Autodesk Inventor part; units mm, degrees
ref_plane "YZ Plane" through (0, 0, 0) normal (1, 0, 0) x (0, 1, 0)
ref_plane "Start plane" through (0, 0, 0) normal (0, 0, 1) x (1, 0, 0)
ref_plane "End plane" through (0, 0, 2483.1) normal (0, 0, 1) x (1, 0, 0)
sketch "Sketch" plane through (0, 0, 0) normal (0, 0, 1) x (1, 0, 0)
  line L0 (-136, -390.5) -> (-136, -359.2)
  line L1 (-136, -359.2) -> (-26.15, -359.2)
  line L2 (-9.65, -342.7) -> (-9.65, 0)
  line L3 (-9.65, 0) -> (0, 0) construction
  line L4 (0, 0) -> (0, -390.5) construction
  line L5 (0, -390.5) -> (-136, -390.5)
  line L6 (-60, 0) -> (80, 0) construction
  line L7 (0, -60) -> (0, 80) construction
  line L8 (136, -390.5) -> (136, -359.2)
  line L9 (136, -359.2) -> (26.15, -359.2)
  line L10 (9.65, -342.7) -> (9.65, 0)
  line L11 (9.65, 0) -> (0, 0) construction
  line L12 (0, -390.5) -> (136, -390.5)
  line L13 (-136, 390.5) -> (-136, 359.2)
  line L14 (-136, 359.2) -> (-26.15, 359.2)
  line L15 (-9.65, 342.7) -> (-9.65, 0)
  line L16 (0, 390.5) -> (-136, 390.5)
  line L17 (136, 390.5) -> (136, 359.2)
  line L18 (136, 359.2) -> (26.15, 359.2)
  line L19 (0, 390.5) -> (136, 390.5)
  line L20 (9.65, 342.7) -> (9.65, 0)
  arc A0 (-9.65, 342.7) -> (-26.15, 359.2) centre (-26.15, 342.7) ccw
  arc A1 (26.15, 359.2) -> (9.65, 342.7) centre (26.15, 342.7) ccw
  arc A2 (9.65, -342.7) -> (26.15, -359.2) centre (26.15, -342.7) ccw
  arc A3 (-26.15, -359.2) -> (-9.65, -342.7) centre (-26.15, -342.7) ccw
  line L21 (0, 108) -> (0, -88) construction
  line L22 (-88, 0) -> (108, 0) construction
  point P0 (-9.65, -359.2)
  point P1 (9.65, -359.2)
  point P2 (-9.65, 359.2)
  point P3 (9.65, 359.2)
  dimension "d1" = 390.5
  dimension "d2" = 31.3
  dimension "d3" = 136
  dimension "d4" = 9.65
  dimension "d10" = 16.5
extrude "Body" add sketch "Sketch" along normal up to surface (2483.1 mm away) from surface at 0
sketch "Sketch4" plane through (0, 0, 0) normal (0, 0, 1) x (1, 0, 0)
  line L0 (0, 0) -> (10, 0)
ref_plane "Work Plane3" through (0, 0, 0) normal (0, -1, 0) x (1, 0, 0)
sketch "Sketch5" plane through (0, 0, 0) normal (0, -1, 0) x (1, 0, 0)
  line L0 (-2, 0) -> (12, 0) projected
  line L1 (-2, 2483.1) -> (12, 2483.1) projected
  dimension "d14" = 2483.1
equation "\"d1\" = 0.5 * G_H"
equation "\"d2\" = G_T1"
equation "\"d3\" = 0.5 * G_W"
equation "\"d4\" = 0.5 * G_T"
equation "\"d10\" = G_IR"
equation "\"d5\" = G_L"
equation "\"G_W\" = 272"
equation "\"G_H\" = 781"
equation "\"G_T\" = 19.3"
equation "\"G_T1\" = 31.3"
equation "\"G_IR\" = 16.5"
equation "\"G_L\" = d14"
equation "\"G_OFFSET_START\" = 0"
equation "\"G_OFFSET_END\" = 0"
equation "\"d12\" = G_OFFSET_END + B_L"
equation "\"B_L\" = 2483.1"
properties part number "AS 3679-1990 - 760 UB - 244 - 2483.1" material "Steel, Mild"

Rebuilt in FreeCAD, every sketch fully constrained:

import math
import FreeCAD as App
import Part
import Sketcher

V = App.Vector
Q = App.Units.Quantity

doc = App.newDocument("Part")
body = doc.addObject("PartDesign::Body", "Body")

# Sketch on XY plane
sketch1 = doc.addObject("Sketcher::SketchObject", "Sketch")
body.addObject(sketch1)
sketch1.AttachmentSupport = (doc.XY_Plane, [""])
sketch1.MapMode = "FlatFace"
sketch1.addGeometry(Part.LineSegment(V(-136, -359, 0), V(-136, -390, 0)), False)
sketch1.addGeometry(Part.LineSegment(V(-136, -390, 0), V(136, -390, 0)), False)
sketch1.addGeometry(Part.LineSegment(V(136, -390, 0), V(136, -359, 0)), False)
sketch1.addGeometry(Part.LineSegment(V(136, -359, 0), V(26, -359, 0)), False)
sketch1.addGeometry(Part.ArcOfCircle(Part.Circle(V(26, -343, 0), V(0, 0, 1), 16), math.radians(180), math.radians(270)), False)
sketch1.addGeometry(Part.LineSegment(V(10, -343, 0), V(10, 343, 0)), False)
sketch1.addGeometry(Part.ArcOfCircle(Part.Circle(V(26, 343, 0), V(0, 0, 1), 16), math.radians(90), math.radians(180)), False)
sketch1.addGeometry(Part.LineSegment(V(26, 359, 0), V(136, 359, 0)), False)
sketch1.addGeometry(Part.LineSegment(V(136, 359, 0), V(136, 390, 0)), False)
sketch1.addGeometry(Part.LineSegment(V(136, 390, 0), V(-136, 390, 0)), False)
sketch1.addGeometry(Part.LineSegment(V(-136, 390, 0), V(-136, 359, 0)), False)
sketch1.addGeometry(Part.LineSegment(V(-136, 359, 0), V(-26, 359, 0)), False)
sketch1.addGeometry(Part.ArcOfCircle(Part.Circle(V(-26, 343, 0), V(0, 0, 1), 16), math.radians(0), math.radians(90)), False)
sketch1.addGeometry(Part.LineSegment(V(-10, 343, 0), V(-10, -343, 0)), False)
sketch1.addGeometry(Part.ArcOfCircle(Part.Circle(V(-26, -343, 0), V(0, 0, 1), 16), math.radians(-90), math.radians(0)), False)
sketch1.addGeometry(Part.LineSegment(V(-26, -359, 0), V(-136, -359, 0)), False)
sketch1.addConstraint(Sketcher.Constraint("Coincident", 0, 2, 1, 1))
sketch1.addConstraint(Sketcher.Constraint("Coincident", 1, 2, 2, 1))
sketch1.addConstraint(Sketcher.Constraint("Coincident", 2, 2, 3, 1))
sketch1.addConstraint(Sketcher.Constraint("Tangent", 3, 2, 4, 2))
sketch1.addConstraint(Sketcher.Constraint("Tangent", 4, 1, 5, 1))
sketch1.addConstraint(Sketcher.Constraint("Tangent", 5, 2, 6, 2))
sketch1.addConstraint(Sketcher.Constraint("Tangent", 6, 1, 7, 1))
sketch1.addConstraint(Sketcher.Constraint("Coincident", 7, 2, 8, 1))
sketch1.addConstraint(Sketcher.Constraint("Coincident", 8, 2, 9, 1))
sketch1.addConstraint(Sketcher.Constraint("Coincident", 9, 2, 10, 1))
sketch1.addConstraint(Sketcher.Constraint("Coincident", 10, 2, 11, 1))
sketch1.addConstraint(Sketcher.Constraint("Tangent", 11, 2, 12, 2))
sketch1.addConstraint(Sketcher.Constraint("Tangent", 12, 1, 13, 1))
sketch1.addConstraint(Sketcher.Constraint("Tangent", 13, 2, 14, 2))
sketch1.addConstraint(Sketcher.Constraint("Tangent", 14, 1, 15, 1))
sketch1.addConstraint(Sketcher.Constraint("Coincident", 15, 2, 0, 1))
sketch1.addConstraint(Sketcher.Constraint("Vertical", 0))
sketch1.addConstraint(Sketcher.Constraint("Horizontal", 1))
sketch1.addConstraint(Sketcher.Constraint("Vertical", 2))
sketch1.addConstraint(Sketcher.Constraint("Horizontal", 3))
sketch1.addConstraint(Sketcher.Constraint("Vertical", 5))
sketch1.addConstraint(Sketcher.Constraint("Horizontal", 7))
sketch1.addConstraint(Sketcher.Constraint("Vertical", 8))
sketch1.addConstraint(Sketcher.Constraint("Horizontal", 9))
sketch1.addConstraint(Sketcher.Constraint("Vertical", 10))
sketch1.addConstraint(Sketcher.Constraint("Horizontal", 11))
sketch1.addConstraint(Sketcher.Constraint("Vertical", 13))
sketch1.addConstraint(Sketcher.Constraint("Horizontal", 15))
sketch1.addConstraint(Sketcher.Constraint("Equal", 4, 6))
sketch1.addConstraint(Sketcher.Constraint("Equal", 6, 12))
sketch1.addConstraint(Sketcher.Constraint("Equal", 12, 14))
sketch1.addConstraint(Sketcher.Constraint("Symmetric", 4, 3, 12, 3, -1, 1))
sketch1.addConstraint(Sketcher.Constraint("Symmetric", 0, 2, 8, 2, -1, 1))
sketch1.addConstraint(Sketcher.Constraint("Symmetric", 7, 2, 10, 2, -2))
sketch1.addConstraint(Sketcher.Constraint("Symmetric", 2, 2, 15, 2, -2))
sketch1.addConstraint(Sketcher.Constraint("Radius", 4, Q("16.5 mm")))
sketch1.addConstraint(Sketcher.Constraint("DistanceY", 0, 2, 0, 1, Q("31.3 mm")))
sketch1.addConstraint(Sketcher.Constraint("DistanceX", 0, 2, -1, 1, Q("136 mm")))
sketch1.addConstraint(Sketcher.Constraint("DistanceY", 0, 2, -1, 1, Q("390.5 mm")))
sketch1.addConstraint(Sketcher.Constraint("DistanceX", -1, 1, 4, 1, Q("9.65 mm")))
pad1 = doc.addObject("PartDesign::Pad", "Pad")
body.addObject(pad1)
pad1.Profile = sketch1
pad1.Length = 2483.1

doc.recompute()
